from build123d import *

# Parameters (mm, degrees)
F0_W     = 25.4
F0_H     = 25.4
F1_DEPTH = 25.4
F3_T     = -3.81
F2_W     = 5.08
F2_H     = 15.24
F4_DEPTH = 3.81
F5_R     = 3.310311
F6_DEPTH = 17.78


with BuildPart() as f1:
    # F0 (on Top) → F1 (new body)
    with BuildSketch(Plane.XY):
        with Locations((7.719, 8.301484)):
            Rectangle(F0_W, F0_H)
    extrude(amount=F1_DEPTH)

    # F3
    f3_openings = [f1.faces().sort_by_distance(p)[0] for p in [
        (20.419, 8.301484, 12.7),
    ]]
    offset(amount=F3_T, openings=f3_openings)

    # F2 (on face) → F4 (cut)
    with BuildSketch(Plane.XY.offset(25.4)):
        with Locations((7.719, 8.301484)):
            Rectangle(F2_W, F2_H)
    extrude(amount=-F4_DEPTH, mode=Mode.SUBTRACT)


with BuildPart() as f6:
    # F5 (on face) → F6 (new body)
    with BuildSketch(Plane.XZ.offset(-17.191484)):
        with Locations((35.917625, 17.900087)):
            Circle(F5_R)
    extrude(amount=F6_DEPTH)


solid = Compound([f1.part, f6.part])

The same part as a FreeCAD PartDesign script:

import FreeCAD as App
import Part
import Sketcher

V = App.Vector
Q = App.Units.Quantity


def faces_at(feature, points):
    """Names of the faces that lie closest to the given points."""
    faces = feature.Shape.Faces
    near = lambda p: min(range(len(faces)), key=lambda i: faces[i].distToShape(Part.Vertex(*p))[0])
    return sorted({f"Face{near(p) + 1}" for p in points})


def add_polygon(sketch, points):
    """Adds a closed chain of lines whose ends are joined by coincident constraints."""
    first, n = sketch.GeometryCount, len(points)
    for a, b in zip(points, points[1:] + points[:1]):
        sketch.addGeometry(Part.LineSegment(App.Vector(*a, 0), App.Vector(*b, 0)), False)
    for i in range(n):
        sketch.addConstraint(Sketcher.Constraint("Coincident", first + i, 2, first + (i + 1) % n, 1))

doc = App.newDocument("Part")
params = doc.addObject("Spreadsheet::Sheet", "Params")
for row, (alias, value) in enumerate([
    ("sketch1_width", "1 in"),
    ("pad1_length", "1 in"),
    ("thickness_wall", "0.15 in"),
    ("sketch2_width", "0.2 in"),
    ("sketch2_height", "0.6 in"),
    ("pocket1_length", "0.15 in"),
    ("pad2_length", "0.7 in"),
], start=1):
    params.set(f"A{row}", alias)
    params.set(f"B{row}", "=" + value)
    params.setAlias(f"B{row}", alias)

body = doc.addObject("PartDesign::Body", "Body")

# Sketch on XY plane
sketch1 = body.newObject("Sketcher::SketchObject", "Sketch")
sketch1.AttachmentSupport = (doc.getObject("XY_Plane"), [""])
sketch1.MapMode = "FlatFace"
add_polygon(sketch1, [(-5, 21), (-5, -4), (20, -4), (20, 21)])  # lines 0-3
sketch1.addConstraint([
    Sketcher.Constraint("Vertical", 0),
    Sketcher.Constraint("Horizontal", 1),
    Sketcher.Constraint("Vertical", 2),
    Sketcher.Constraint("Horizontal", 3),
    Sketcher.Constraint("Equal", 3, 0),
    Sketcher.Constraint("DistanceX", 1, 1, 1, 2, Q("1 in")),
    Sketcher.Constraint("DistanceX", 0, 2, -1, 1, Q("4.981 mm")),
    Sketcher.Constraint("DistanceY", 0, 2, -1, 1, Q("4.398516 mm")),
])
sketch1.setExpression("Constraints[9]", "Params.sketch1_width")
pad1 = body.newObject("PartDesign::Pad", "Pad")
pad1.Profile = sketch1
pad1.setExpression("Length", "Params.pad1_length")
doc.recompute()

thickness = body.newObject("PartDesign::Thickness", "Thickness")
thickness.Base = (pad1, faces_at(pad1, [(20.419, 8.301, 12.7)]))
thickness.setExpression("Value", "Params.thickness_wall")
thickness.Reversed = True
thickness.Join = "Arc"

# Sketch on XY plane
sketch2 = body.newObject("Sketcher::SketchObject", "Sketch001")
sketch2.AttachmentSupport = (doc.getObject("XY_Plane"), [""])
sketch2.MapMode = "FlatFace"
sketch2.AttachmentOffset = App.Placement(V(0, 0, 1 * 25.4), App.Rotation())
add_polygon(sketch2, [(5, 16), (5, 1), (10, 1), (10, 16)])  # lines 0-3
sketch2.addConstraint([
    Sketcher.Constraint("Vertical", 0),
    Sketcher.Constraint("Horizontal", 1),
    Sketcher.Constraint("Vertical", 2),
    Sketcher.Constraint("Horizontal", 3),
    Sketcher.Constraint("DistanceX", 1, 1, 1, 2, Q("0.2 in")),
    Sketcher.Constraint("DistanceY", 0, 2, 0, 1, Q("0.6 in")),
    Sketcher.Constraint("DistanceX", -1, 1, 0, 2, Q("5.179 mm")),
    Sketcher.Constraint("DistanceY", -1, 1, 0, 2, Q("0.681484 mm")),
])
sketch2.setExpression("Constraints[8]", "Params.sketch2_width")
sketch2.setExpression("Constraints[9]", "Params.sketch2_height")
pocket1 = body.newObject("PartDesign::Pocket", "Pocket")
pocket1.Profile = sketch2
pocket1.setExpression("Length", "Params.pocket1_length")
body2 = doc.addObject("PartDesign::Body", "Body001")

# Sketch on XZ plane
sketch3 = body2.newObject("Sketcher::SketchObject", "Sketch002")
sketch3.AttachmentSupport = (doc.getObject("XZ_Plane001"), [""])
sketch3.MapMode = "FlatFace"
sketch3.AttachmentOffset = App.Placement(V(0, 0, -17.191484), App.Rotation())
sketch3.addGeometry(Part.Circle(V(35.9, 17.9, 0), V(0, 0, 1), 3.3), False)
sketch3.addConstraint([
    Sketcher.Constraint("Diameter", 0, Q("6.620622 mm")),
    Sketcher.Constraint("DistanceX", -1, 1, 0, 3, Q("35.917625 mm")),
    Sketcher.Constraint("DistanceY", -1, 1, 0, 3, Q("17.900087 mm")),
])
pad2 = body2.newObject("PartDesign::Pad", "Pad001")
pad2.Profile = sketch3
pad2.setExpression("Length", "Params.pad2_length")

doc.recompute()
